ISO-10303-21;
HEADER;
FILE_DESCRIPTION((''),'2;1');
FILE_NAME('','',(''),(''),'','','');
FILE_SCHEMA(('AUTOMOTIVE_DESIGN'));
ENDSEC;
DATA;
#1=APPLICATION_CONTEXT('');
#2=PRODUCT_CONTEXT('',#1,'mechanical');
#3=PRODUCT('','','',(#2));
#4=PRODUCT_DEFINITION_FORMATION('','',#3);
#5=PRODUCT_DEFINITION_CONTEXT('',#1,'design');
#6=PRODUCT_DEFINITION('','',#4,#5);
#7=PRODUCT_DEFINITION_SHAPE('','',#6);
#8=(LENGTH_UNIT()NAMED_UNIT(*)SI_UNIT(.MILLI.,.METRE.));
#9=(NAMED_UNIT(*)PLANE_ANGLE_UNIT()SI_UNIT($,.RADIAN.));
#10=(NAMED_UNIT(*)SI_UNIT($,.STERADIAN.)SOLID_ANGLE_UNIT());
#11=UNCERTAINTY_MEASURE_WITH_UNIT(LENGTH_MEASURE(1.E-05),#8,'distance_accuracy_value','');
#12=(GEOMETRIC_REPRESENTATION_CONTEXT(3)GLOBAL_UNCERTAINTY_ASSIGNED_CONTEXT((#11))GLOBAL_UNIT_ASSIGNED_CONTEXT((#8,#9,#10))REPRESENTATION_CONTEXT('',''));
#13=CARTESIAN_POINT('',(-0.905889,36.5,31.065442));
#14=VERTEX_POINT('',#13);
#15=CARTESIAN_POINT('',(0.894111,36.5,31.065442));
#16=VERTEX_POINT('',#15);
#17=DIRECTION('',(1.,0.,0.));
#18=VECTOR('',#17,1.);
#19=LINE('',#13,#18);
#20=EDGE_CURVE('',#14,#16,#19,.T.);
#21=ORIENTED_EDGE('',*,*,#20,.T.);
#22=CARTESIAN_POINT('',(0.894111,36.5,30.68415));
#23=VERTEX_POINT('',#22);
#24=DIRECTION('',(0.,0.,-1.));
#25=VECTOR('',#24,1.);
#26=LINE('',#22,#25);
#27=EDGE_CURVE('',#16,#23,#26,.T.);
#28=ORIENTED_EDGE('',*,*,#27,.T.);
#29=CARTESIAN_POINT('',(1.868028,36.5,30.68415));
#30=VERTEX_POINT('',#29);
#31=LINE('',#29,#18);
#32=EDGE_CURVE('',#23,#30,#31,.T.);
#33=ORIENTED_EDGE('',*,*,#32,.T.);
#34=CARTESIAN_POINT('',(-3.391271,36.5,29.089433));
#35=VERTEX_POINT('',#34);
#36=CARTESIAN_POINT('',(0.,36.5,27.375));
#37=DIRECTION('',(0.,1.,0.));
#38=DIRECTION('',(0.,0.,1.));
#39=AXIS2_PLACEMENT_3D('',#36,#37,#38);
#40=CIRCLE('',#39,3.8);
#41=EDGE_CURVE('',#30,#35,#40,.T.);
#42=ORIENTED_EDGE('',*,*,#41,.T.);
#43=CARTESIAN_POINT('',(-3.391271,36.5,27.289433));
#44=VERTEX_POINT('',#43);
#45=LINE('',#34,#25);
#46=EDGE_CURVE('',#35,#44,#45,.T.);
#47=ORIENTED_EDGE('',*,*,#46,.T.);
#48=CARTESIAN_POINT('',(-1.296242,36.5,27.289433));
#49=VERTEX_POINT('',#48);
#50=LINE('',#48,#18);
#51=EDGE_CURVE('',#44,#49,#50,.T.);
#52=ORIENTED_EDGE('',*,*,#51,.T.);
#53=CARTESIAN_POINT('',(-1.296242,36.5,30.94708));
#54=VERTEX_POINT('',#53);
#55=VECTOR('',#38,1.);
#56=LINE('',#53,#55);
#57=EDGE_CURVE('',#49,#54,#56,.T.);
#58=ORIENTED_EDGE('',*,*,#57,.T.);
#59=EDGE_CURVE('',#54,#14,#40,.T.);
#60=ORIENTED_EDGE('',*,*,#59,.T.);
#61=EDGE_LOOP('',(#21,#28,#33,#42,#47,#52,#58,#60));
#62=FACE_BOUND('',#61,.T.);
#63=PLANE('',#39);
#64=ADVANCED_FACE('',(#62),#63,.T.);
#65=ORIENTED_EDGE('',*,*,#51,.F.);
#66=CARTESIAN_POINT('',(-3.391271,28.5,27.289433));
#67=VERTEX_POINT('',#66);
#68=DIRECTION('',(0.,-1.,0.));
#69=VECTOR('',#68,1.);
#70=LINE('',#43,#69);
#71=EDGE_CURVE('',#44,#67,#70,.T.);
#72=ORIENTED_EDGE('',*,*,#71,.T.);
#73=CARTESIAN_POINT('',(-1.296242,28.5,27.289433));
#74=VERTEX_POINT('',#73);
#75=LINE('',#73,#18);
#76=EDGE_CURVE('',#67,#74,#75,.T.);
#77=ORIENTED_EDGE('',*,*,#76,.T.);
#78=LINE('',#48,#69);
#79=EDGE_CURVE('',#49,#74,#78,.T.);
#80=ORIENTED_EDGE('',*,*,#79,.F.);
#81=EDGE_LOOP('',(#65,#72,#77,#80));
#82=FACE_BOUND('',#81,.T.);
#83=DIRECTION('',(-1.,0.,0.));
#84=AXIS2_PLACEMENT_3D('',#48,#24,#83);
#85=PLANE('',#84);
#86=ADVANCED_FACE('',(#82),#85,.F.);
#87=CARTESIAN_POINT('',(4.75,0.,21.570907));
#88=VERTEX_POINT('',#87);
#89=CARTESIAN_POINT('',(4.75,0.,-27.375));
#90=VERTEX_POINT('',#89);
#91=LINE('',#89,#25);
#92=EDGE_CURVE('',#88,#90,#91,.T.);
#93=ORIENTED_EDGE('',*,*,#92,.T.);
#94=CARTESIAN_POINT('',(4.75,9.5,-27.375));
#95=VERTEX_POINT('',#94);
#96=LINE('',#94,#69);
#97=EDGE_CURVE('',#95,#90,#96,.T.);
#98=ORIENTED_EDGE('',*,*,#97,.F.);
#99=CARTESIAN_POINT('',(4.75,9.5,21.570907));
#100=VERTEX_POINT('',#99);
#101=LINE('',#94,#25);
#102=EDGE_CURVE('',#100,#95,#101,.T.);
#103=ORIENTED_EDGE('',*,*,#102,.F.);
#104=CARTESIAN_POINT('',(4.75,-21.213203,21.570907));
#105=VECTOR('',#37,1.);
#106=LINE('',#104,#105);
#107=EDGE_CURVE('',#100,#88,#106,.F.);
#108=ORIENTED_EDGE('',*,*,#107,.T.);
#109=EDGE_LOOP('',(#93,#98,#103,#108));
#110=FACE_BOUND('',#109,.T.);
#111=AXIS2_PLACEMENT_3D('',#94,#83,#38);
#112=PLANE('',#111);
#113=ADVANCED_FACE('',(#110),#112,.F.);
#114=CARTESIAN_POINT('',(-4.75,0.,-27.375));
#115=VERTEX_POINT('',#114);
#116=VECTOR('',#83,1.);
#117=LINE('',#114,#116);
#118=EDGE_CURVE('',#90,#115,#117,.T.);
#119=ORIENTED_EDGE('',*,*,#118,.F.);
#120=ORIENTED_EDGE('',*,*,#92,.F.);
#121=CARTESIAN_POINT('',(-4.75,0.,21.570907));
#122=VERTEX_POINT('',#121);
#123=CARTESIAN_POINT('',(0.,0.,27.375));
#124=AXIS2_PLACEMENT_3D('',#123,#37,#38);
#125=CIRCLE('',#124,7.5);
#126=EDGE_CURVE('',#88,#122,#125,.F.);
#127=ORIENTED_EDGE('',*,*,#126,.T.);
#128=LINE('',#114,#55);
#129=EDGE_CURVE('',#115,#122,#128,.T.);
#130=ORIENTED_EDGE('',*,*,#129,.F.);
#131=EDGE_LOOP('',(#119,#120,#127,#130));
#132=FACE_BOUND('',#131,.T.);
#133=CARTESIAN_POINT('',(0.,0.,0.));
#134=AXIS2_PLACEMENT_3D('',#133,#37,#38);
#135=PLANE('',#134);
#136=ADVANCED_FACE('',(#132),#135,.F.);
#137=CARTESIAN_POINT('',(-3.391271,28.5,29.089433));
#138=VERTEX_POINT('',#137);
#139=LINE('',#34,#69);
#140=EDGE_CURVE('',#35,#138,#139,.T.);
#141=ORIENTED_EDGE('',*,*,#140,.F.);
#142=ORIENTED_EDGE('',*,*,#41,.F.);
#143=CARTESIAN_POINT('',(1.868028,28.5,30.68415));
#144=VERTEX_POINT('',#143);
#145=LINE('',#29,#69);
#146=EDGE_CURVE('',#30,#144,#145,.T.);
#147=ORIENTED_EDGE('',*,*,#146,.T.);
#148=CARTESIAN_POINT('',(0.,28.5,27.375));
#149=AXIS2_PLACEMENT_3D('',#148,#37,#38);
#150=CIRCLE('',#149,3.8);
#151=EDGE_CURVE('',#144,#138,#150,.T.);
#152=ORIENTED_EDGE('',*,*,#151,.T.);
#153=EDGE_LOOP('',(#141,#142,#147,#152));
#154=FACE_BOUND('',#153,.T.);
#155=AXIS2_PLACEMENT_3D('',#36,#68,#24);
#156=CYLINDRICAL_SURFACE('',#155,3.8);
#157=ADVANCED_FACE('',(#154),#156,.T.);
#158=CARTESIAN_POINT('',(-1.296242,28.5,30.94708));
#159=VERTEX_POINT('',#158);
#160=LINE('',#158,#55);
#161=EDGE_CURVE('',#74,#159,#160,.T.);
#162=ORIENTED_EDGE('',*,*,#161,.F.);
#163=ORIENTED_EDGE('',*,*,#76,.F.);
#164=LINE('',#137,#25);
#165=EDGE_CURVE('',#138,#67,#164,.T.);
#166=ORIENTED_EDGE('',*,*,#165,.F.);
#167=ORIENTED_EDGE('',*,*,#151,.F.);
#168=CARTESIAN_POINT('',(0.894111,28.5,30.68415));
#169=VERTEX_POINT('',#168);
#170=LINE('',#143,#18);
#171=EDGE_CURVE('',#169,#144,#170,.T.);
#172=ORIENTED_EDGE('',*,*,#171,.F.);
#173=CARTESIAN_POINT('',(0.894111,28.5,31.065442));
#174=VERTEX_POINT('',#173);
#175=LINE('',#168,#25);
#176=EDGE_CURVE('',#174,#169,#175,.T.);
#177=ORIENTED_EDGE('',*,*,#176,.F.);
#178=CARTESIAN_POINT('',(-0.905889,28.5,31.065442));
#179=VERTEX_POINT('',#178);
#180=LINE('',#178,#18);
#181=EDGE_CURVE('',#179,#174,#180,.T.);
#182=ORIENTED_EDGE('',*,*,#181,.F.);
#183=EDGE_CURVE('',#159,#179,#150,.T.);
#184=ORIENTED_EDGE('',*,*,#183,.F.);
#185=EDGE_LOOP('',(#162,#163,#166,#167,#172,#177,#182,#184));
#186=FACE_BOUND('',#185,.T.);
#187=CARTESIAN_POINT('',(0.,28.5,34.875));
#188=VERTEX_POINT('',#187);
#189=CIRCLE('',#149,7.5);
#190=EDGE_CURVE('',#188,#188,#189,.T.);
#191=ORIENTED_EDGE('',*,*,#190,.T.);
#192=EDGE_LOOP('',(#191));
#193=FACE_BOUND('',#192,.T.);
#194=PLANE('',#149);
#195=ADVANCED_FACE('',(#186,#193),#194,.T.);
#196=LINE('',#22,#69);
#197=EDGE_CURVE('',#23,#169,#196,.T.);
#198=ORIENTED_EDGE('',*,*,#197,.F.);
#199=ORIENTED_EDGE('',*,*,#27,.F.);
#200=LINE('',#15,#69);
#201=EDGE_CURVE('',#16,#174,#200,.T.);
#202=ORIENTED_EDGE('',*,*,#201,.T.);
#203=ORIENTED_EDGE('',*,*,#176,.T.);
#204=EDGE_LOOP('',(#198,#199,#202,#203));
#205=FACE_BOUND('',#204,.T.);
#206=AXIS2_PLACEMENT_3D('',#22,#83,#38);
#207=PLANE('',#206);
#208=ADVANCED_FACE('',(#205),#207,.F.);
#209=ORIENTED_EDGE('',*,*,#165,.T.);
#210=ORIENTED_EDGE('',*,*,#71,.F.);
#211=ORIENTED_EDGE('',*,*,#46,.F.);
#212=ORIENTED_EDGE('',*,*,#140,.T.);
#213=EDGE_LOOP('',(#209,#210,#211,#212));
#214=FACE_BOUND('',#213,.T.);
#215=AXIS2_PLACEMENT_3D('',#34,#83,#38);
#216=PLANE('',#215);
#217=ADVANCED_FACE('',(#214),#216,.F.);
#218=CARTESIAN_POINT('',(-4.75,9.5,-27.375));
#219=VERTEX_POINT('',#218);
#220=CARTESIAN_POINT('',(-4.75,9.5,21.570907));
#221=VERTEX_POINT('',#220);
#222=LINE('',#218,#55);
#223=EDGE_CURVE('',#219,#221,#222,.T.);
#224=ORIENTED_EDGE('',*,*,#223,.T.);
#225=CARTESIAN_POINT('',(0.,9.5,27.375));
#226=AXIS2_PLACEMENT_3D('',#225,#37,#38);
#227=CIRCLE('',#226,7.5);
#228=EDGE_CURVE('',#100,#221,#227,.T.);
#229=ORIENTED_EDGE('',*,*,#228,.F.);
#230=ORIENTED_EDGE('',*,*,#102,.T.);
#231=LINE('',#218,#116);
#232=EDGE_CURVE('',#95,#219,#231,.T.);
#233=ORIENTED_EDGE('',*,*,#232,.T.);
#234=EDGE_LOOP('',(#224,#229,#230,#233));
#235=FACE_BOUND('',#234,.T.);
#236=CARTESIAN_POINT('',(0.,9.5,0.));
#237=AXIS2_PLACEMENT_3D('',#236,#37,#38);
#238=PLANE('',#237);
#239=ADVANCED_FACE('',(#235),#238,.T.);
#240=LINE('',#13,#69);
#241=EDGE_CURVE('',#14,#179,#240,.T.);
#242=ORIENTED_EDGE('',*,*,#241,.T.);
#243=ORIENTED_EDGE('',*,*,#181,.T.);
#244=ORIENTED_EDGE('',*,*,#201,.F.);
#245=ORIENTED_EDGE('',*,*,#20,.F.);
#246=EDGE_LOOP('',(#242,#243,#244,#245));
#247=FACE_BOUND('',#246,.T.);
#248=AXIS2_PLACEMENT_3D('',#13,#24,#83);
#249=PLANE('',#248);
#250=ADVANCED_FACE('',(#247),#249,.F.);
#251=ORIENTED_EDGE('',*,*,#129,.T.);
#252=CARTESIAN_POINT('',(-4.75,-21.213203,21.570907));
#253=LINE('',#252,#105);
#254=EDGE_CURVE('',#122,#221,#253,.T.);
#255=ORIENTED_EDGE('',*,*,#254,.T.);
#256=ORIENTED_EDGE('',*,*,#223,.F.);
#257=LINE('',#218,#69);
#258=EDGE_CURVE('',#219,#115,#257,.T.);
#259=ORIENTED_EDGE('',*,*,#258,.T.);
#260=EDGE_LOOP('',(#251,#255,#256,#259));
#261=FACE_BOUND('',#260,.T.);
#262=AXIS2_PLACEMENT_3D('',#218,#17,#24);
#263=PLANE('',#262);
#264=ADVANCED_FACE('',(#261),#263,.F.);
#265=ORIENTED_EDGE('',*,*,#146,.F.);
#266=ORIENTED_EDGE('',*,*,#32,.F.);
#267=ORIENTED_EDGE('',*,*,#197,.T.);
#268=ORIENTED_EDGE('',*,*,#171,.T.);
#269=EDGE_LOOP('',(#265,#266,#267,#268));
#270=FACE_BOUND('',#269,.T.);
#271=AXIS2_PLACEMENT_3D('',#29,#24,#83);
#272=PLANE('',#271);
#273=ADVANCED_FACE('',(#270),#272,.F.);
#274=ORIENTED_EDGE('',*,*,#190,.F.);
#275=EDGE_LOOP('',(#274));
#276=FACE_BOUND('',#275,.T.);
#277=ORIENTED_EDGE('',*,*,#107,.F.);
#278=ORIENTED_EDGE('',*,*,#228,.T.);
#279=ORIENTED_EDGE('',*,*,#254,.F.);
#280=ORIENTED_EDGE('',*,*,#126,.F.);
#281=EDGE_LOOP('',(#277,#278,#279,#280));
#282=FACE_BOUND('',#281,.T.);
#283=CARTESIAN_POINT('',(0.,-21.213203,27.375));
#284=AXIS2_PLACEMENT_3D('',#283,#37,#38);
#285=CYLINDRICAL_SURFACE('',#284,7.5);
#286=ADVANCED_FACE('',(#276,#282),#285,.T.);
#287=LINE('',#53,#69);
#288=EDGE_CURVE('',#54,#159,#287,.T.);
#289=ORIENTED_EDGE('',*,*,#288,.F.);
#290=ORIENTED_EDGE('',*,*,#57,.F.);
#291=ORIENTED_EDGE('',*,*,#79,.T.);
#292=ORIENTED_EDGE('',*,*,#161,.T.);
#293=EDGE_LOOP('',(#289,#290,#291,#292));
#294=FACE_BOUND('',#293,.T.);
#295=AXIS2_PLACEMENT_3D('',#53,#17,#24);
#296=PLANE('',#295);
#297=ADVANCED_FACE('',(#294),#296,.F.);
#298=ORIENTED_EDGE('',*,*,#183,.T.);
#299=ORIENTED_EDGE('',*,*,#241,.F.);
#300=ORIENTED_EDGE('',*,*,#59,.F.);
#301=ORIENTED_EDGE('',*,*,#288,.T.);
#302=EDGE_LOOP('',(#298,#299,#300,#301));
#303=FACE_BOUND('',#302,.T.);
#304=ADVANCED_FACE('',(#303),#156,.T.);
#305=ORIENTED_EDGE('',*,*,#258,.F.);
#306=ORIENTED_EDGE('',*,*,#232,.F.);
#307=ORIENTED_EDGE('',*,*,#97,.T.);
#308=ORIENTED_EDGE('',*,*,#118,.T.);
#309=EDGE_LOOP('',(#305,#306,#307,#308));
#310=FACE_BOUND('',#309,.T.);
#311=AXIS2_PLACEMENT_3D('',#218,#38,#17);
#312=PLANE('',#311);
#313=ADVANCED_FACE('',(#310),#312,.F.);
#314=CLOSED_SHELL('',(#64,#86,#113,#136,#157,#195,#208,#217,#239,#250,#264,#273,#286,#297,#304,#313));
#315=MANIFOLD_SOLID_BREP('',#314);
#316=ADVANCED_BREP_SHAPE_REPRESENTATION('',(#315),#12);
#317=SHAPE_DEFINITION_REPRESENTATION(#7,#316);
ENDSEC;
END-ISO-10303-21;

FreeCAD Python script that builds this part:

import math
import FreeCAD as App
import Part
import Sketcher
from FreeCAD import Vector

doc = App.newDocument("Part")
body = doc.addObject("PartDesign::Body", "Body")

sketch1 = body.newObject("Sketcher::SketchObject", "Sketch")
sketch1.AttachmentSupport = (doc.getObject("XZ_Plane"), [""])
sketch1.MapMode = "FlatFace"
sketch1.addGeometry([
    Part.LineSegment(Vector(-4.75, -27.375, 0), Vector(-4.75, 27.375, 0)),
    Part.LineSegment(Vector(-4.75, 27.375, 0), Vector(4.75, 27.375, 0)),
    Part.LineSegment(Vector(4.75, 27.375, 0), Vector(4.75, -27.375, 0)),
    Part.LineSegment(Vector(4.75, -27.375, 0), Vector(-4.75, -27.375, 0)),
], False)
sketch1.addConstraint([
    Sketcher.Constraint("Coincident", 0, 2, 1, 1),
    Sketcher.Constraint("Coincident", 1, 2, 2, 1),
    Sketcher.Constraint("Coincident", 2, 2, 3, 1),
    Sketcher.Constraint("Coincident", 3, 2, 0, 1),
    Sketcher.Constraint("Vertical", 0),
    Sketcher.Constraint("Horizontal", 1),
    Sketcher.Constraint("Vertical", 2),
    Sketcher.Constraint("Horizontal", 3),
    Sketcher.Constraint("Symmetric", 0, 2, 2, 2, -1, 1),
    Sketcher.Constraint("DistanceX", 1, 1, 1, 2, 9.5),
    Sketcher.Constraint("DistanceY", 0, 1, 0, 2, 54.75),
])
pad1 = body.newObject("PartDesign::Pad", "Pad")
pad1.Profile = sketch1
pad1.Length = 9.5
pad1.Reversed = True

sketch2 = body.newObject("Sketcher::SketchObject", "Sketch001")
sketch2.AttachmentSupport = (doc.getObject("XZ_Plane"), [""])
sketch2.MapMode = "FlatFace"
sketch2.AttachmentOffset = App.Placement(Vector(0, 0, -9.5), App.Rotation())
sketch2.addGeometry(Part.Circle(Vector(0, 27.375, 0), Vector(0, 0, 1), 7.5), False)
sketch2.addConstraint([
    Sketcher.Constraint("PointOnObject", 0, 3, -2),
    Sketcher.Constraint("Diameter", 0, 15.0),
    Sketcher.Constraint("DistanceY", -1, 1, 0, 3, 27.375),
])
pad2 = body.newObject("PartDesign::Pad", "Pad001")
pad2.Profile = sketch2
pad2.Type = "TwoLengths"
pad2.Length = 19
pad2.Length2 = 9.5
pad2.Reversed = True

sketch3 = body.newObject("Sketcher::SketchObject", "Sketch002")
sketch3.AttachmentSupport = (doc.getObject("XZ_Plane"), [""])
sketch3.MapMode = "FlatFace"
sketch3.AttachmentOffset = App.Placement(Vector(0, 0, -28.5), App.Rotation())
sketch3.addGeometry([
    Part.LineSegment(Vector(-1.296242, 27.289433, 0), Vector(-1.296242, 30.94708, 0)),
    Part.ArcOfCircle(Part.Circle(Vector(0, 27.375, 0), Vector(0, 0, 1), 3.8), math.radians(103.791652), math.radians(109.944893)),
    Part.LineSegment(Vector(-0.905889, 31.065442, 0), Vector(0.894111, 31.065442, 0)),
    Part.LineSegment(Vector(0.894111, 31.065442, 0), Vector(0.894111, 30.68415, 0)),
    Part.LineSegment(Vector(0.894111, 30.68415, 0), Vector(1.868028, 30.68415, 0)),
    Part.ArcOfCircle(Part.Circle(Vector(0, 27.375, 0), Vector(0, 0, 1), 3.8), math.radians(153.181438), math.radians(420.555107)),
    Part.LineSegment(Vector(-3.391271, 29.089433, 0), Vector(-3.391271, 27.289433, 0)),
    Part.LineSegment(Vector(-3.391271, 27.289433, 0), Vector(-1.296242, 27.289433, 0)),
], False)
sketch3.addConstraint([
    Sketcher.Constraint("Coincident", 0, 2, 1, 2),
    Sketcher.Constraint("Coincident", 1, 1, 2, 1),
    Sketcher.Constraint("Coincident", 2, 2, 3, 1),
    Sketcher.Constraint("Coincident", 3, 2, 4, 1),
    Sketcher.Constraint("Coincident", 4, 2, 5, 2),
    Sketcher.Constraint("Coincident", 5, 1, 6, 1),
    Sketcher.Constraint("Coincident", 6, 2, 7, 1),
    Sketcher.Constraint("Coincident", 7, 2, 0, 1),
    Sketcher.Constraint("Vertical", 0),
    Sketcher.Constraint("Horizontal", 2),
    Sketcher.Constraint("Vertical", 3),
    Sketcher.Constraint("Horizontal", 4),
    Sketcher.Constraint("Vertical", 6),
    Sketcher.Constraint("Horizontal", 7),
    Sketcher.Constraint("Coincident", 5, 3, 1, 3),
    Sketcher.Constraint("Equal", 1, 5),
    Sketcher.Constraint("PointOnObject", 1, 3, -2),
    Sketcher.Constraint("Equal", 2, 6),
    Sketcher.Constraint("Radius", 1, 3.8),
    Sketcher.Constraint("DistanceX", 2, 1, 2, 2, 1.8),
    Sketcher.Constraint("DistanceY", -1, 1, 1, 3, 27.375),
    Sketcher.Constraint("DistanceX", 7, 1, 7, 2, 2.095029),
    Sketcher.Constraint("DistanceX", 4, 1, 4, 2, 0.973917),
    Sketcher.Constraint("DistanceY", 0, 1, 0, 2, 3.657647),
    Sketcher.Constraint("DistanceY", 3, 2, 3, 1, 0.381292),
])
pad3 = body.newObject("PartDesign::Pad", "Pad002")
pad3.Profile = sketch3
pad3.Length = 8
pad3.Reversed = True

doc.recompute()
